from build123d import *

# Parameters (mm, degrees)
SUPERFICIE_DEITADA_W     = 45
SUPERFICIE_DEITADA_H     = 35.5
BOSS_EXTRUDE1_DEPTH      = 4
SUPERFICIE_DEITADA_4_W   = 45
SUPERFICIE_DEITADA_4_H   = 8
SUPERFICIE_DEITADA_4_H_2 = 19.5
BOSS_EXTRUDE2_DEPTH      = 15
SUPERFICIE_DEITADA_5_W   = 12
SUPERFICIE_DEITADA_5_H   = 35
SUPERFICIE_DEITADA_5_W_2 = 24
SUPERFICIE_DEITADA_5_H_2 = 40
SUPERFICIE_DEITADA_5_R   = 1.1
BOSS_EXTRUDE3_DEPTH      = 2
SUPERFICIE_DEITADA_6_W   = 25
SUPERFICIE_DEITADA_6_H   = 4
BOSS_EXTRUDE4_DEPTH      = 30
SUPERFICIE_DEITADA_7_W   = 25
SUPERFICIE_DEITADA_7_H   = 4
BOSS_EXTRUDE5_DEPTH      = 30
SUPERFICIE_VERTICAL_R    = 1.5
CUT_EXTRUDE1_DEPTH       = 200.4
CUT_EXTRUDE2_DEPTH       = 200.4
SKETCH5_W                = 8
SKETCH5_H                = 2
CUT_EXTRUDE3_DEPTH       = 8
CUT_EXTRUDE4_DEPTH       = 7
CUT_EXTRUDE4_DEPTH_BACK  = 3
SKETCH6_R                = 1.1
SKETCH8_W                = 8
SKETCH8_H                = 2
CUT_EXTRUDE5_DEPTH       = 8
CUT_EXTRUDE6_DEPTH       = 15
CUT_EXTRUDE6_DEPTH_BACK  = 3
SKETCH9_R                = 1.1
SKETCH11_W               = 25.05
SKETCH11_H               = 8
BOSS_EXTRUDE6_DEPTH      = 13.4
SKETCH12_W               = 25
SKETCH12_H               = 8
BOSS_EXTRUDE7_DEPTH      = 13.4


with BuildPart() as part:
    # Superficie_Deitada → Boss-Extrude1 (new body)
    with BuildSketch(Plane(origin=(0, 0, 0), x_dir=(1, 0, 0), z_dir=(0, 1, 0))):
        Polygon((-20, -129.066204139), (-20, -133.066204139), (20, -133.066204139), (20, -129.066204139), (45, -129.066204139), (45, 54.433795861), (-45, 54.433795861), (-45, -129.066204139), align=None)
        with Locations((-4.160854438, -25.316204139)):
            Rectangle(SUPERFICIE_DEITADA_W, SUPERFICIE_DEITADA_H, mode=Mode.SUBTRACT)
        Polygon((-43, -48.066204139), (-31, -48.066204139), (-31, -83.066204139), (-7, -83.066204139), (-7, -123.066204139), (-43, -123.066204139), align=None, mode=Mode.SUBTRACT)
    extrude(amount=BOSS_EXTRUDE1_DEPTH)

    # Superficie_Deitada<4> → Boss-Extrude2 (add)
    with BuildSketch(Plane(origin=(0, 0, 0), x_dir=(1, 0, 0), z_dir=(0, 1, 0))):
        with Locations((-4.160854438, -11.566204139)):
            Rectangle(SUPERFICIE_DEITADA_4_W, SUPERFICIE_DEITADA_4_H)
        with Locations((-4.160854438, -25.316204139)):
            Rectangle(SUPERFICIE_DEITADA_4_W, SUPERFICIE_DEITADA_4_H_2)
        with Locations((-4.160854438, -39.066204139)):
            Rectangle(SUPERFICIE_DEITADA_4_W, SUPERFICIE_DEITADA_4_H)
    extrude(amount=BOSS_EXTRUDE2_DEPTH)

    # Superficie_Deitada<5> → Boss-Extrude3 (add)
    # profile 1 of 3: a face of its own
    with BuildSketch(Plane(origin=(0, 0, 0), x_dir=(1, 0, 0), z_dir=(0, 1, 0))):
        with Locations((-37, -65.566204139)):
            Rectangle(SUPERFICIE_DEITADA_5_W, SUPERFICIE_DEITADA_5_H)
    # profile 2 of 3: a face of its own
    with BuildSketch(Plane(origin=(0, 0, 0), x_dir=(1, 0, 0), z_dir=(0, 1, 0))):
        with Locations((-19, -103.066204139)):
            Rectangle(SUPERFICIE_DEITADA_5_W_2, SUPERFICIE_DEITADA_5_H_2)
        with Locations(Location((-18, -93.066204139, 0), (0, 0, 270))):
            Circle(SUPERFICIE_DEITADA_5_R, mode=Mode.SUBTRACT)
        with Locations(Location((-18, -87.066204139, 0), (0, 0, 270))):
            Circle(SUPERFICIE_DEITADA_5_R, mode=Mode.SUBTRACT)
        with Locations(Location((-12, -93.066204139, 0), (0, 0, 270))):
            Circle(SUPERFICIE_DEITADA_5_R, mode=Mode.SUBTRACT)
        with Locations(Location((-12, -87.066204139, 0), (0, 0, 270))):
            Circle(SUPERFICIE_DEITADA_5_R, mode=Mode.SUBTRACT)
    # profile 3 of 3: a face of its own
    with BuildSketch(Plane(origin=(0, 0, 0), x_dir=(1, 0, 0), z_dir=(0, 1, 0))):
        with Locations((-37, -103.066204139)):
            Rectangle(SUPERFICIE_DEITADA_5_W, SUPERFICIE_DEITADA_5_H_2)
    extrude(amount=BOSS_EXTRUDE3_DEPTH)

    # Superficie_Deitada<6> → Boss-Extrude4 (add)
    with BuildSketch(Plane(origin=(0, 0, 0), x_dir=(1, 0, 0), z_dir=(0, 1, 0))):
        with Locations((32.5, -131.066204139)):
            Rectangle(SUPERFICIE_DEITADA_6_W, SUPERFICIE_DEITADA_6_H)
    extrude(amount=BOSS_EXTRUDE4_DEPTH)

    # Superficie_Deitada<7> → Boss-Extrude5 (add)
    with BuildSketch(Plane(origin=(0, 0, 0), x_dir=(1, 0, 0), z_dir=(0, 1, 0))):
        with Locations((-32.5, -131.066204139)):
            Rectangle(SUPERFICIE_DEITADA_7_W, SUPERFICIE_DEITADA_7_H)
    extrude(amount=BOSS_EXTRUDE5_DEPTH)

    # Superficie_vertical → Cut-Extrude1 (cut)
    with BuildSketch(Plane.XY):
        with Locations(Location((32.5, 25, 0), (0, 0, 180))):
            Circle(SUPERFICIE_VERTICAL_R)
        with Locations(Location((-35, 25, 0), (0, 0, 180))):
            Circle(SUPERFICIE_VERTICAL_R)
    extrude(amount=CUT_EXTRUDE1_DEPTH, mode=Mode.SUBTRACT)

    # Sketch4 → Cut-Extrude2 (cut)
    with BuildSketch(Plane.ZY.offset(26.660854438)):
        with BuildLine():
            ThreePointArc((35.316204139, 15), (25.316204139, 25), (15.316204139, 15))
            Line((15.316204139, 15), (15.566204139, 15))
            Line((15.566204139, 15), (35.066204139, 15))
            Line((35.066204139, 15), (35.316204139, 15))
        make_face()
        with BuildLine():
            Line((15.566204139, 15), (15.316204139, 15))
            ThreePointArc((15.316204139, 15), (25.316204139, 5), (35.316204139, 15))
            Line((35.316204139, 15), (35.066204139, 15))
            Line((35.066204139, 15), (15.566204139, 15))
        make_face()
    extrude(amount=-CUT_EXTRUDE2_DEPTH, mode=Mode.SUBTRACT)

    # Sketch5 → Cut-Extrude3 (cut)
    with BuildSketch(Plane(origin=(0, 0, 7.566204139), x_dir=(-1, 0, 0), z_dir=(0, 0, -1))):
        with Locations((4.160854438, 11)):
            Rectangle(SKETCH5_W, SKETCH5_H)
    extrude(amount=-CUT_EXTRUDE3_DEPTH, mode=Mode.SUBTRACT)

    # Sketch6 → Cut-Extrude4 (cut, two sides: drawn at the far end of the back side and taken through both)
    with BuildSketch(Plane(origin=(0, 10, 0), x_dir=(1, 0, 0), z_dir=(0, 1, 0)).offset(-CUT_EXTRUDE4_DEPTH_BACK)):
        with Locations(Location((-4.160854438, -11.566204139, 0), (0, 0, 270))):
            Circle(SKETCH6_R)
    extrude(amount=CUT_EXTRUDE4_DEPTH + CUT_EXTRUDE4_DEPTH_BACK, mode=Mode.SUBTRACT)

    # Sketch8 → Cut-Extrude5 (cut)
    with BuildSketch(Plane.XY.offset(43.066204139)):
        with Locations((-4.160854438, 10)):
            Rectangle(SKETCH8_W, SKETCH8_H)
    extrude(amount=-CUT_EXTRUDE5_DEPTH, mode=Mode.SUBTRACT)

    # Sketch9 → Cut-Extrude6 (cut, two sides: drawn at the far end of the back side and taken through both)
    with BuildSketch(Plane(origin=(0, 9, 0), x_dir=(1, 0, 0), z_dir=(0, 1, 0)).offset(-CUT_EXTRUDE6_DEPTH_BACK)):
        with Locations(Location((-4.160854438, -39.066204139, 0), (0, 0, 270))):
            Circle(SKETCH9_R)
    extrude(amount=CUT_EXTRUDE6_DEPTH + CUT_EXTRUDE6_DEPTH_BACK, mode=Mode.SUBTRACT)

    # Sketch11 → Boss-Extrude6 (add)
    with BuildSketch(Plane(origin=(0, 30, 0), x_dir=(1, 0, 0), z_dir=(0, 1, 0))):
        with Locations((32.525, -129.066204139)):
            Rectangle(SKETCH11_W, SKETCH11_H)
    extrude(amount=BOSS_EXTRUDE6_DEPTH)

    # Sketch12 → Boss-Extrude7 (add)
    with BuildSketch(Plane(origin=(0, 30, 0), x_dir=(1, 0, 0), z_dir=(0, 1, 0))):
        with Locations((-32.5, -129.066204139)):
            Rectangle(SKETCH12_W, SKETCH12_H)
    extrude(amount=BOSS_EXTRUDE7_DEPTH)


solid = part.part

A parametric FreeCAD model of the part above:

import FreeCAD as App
import Part
import Sketcher
Q = App.Units.Quantity


def add_polygon(sketch, points):
    """Adds a closed chain of lines whose ends are joined by coincident constraints."""
    first, n = sketch.GeometryCount, len(points)
    for a, b in zip(points, points[1:] + points[:1]):
        sketch.addGeometry(Part.LineSegment(App.Vector(*a, 0), App.Vector(*b, 0)), False)
    for i in range(n):
        sketch.addConstraint(Sketcher.Constraint("Coincident", first + i, 2, first + (i + 1) % n, 1))

doc = App.newDocument("Part")
body = doc.addObject("PartDesign::Body", "Body")

# Sketch on XZ plane
sketch1 = doc.addObject("Sketcher::SketchObject", "Sketch")
body.addObject(sketch1)
sketch1.AttachmentSupport = (doc.XZ_Plane, [""])
sketch1.MapMode = "FlatFace"
add_polygon(sketch1, [(-20, 129.1), (-20, 133.1), (20, 133.1), (20, 129.1), (45, 129.1), (45, -54.4), (-45, -54.4), (-45, 129.1)])  # lines 0-7
add_polygon(sketch1, [(-43, 123.1), (-43, 48.1), (-31, 48.1), (-31, 83.1), (-7, 83.1), (-7, 123.1)])  # lines 8-13
add_polygon(sketch1, [(18.3, 43.1), (-26.7, 43.1), (-26.7, 7.6), (18.3, 7.6)])  # lines 14-17
sketch1.addConstraint([
    Sketcher.Constraint("Vertical", 0),
    Sketcher.Constraint("Horizontal", 1),
    Sketcher.Constraint("Vertical", 2),
    Sketcher.Constraint("Horizontal", 3),
    Sketcher.Constraint("Vertical", 4),
    Sketcher.Constraint("Horizontal", 5),
    Sketcher.Constraint("Vertical", 6),
    Sketcher.Constraint("Horizontal", 7),
    Sketcher.Constraint("Vertical", 8),
    Sketcher.Constraint("Horizontal", 9),
    Sketcher.Constraint("Vertical", 10),
    Sketcher.Constraint("Horizontal", 11),
    Sketcher.Constraint("Vertical", 12),
    Sketcher.Constraint("Horizontal", 13),
    Sketcher.Constraint("Horizontal", 14),
    Sketcher.Constraint("Vertical", 15),
    Sketcher.Constraint("Horizontal", 16),
    Sketcher.Constraint("Vertical", 17),
    Sketcher.Constraint("Symmetric", 3, 2, 6, 2, -2),
    Sketcher.Constraint("Equal", 3, 7),
    Sketcher.Constraint("Equal", 1, 12),
    Sketcher.Constraint("DistanceX", 1, 1, 1, 2, Q("40 mm")),
    Sketcher.Constraint("DistanceX", 3, 1, 3, 2, Q("25 mm")),
    Sketcher.Constraint("DistanceX", 9, 1, 9, 2, Q("12 mm")),
    Sketcher.Constraint("DistanceX", 11, 1, 11, 2, Q("24 mm")),
    Sketcher.Constraint("DistanceX", 14, 2, 14, 1, Q("45 mm")),
    Sketcher.Constraint("DistanceY", 0, 1, 0, 2, Q("4 mm")),
    Sketcher.Constraint("DistanceY", 8, 2, 8, 1, Q("75 mm")),
    Sketcher.Constraint("DistanceY", 4, 2, 4, 1, Q("183.5 mm")),
    Sketcher.Constraint("DistanceY", 15, 2, 15, 1, Q("35.5 mm")),
    Sketcher.Constraint("DistanceX", 8, 2, -1, 1, Q("43 mm")),
    Sketcher.Constraint("DistanceY", 8, 2, 6, 2, Q("81 mm")),
    Sketcher.Constraint("DistanceY", 14, 2, 9, 2, Q("5 mm")),
    Sketcher.Constraint("DistanceY", -1, 1, 0, 2, Q("133.066204 mm")),
    Sketcher.Constraint("DistanceX", 14, 2, -1, 1, Q("26.660854 mm")),
])
pad1 = doc.addObject("PartDesign::Pad", "Pad")
body.addObject(pad1)
pad1.Profile = sketch1
pad1.Length = 4
pad1.Reversed = True

# Sketch on XZ plane
sketch2 = doc.addObject("Sketcher::SketchObject", "Sketch001")
body.addObject(sketch2)
sketch2.AttachmentSupport = (doc.XZ_Plane, [""])
sketch2.MapMode = "FlatFace"
add_polygon(sketch2, [(-27, 8), (-27, 43), (18, 43), (18, 8)])  # lines 0-3
sketch2.addConstraint([
    Sketcher.Constraint("Vertical", 0),
    Sketcher.Constraint("Horizontal", 1),
    Sketcher.Constraint("Vertical", 2),
    Sketcher.Constraint("Horizontal", 3),
    Sketcher.Constraint("DistanceX", 1, 1, 1, 2, Q("45 mm")),
    Sketcher.Constraint("DistanceY", 0, 1, 0, 2, Q("35.5 mm")),
    Sketcher.Constraint("DistanceX", 0, 2, -1, 1, Q("26.660854 mm")),
    Sketcher.Constraint("DistanceY", -1, 1, 0, 2, Q("43.066204 mm")),
])
pad2 = doc.addObject("PartDesign::Pad", "Pad001")
body.addObject(pad2)
pad2.Profile = sketch2
pad2.Length = 15
pad2.Reversed = True

# Sketch on XZ plane
sketch3 = doc.addObject("Sketcher::SketchObject", "Sketch002")
body.addObject(sketch3)
sketch3.AttachmentSupport = (doc.XZ_Plane, [""])
sketch3.MapMode = "FlatFace"
add_polygon(sketch3, [(-43, 48.1), (-43, 123.1), (-7, 123.1), (-7, 83.1), (-31, 83.1), (-31, 48.1)])  # lines 0-5
sketch3.addGeometry(Part.Circle(App.Vector(-12, 87.1, 0), App.Vector(0, 0, 1), 1.1), False)  # 6
sketch3.addGeometry(Part.Circle(App.Vector(-18, 93.1, 0), App.Vector(0, 0, 1), 1.1), False)  # 7
sketch3.addGeometry(Part.Circle(App.Vector(-12, 93.1, 0), App.Vector(0, 0, 1), 1.1), False)  # 8
sketch3.addGeometry(Part.Circle(App.Vector(-18, 87.1, 0), App.Vector(0, 0, 1), 1.1), False)  # 9
sketch3.addConstraint([
    Sketcher.Constraint("Vertical", 0),
    Sketcher.Constraint("Horizontal", 1),
    Sketcher.Constraint("Vertical", 2),
    Sketcher.Constraint("Horizontal", 3),
    Sketcher.Constraint("Vertical", 4),
    Sketcher.Constraint("Horizontal", 5),
    Sketcher.Constraint("Equal", 6, 7),
    Sketcher.Constraint("Equal", 7, 8),
    Sketcher.Constraint("Equal", 8, 9),
    Sketcher.Constraint("Horizontal", 7, 3, 8, 3),
    Sketcher.Constraint("Horizontal", 6, 3, 9, 3),
    Sketcher.Constraint("Vertical", 6, 3, 8, 3),
    Sketcher.Constraint("Vertical", 7, 3, 9, 3),
    Sketcher.Constraint("Diameter", 6, Q("2.2 mm")),
    Sketcher.Constraint("DistanceX", 1, 1, 1, 2, Q("36 mm")),
    Sketcher.Constraint("DistanceX", 3, 2, 3, 1, Q("24 mm")),
    Sketcher.Constraint("DistanceY", 0, 1, 0, 2, Q("75 mm")),
    Sketcher.Constraint("DistanceY", 2, 2, 2, 1, Q("40 mm")),
    Sketcher.Constraint("DistanceX", 6, 3, -1, 1, Q("12 mm")),
    Sketcher.Constraint("DistanceX", 7, 3, -1, 1, Q("18 mm")),
    Sketcher.Constraint("DistanceX", 0, 2, -1, 1, Q("43 mm")),
    Sketcher.Constraint("DistanceY", 6, 3, 7, 3, Q("6 mm")),
    Sketcher.Constraint("DistanceY", 7, 3, 0, 2, Q("30 mm")),
    Sketcher.Constraint("DistanceY", -1, 1, 6, 3, Q("87.066204 mm")),
])
pad3 = doc.addObject("PartDesign::Pad", "Pad002")
body.addObject(pad3)
pad3.Profile = sketch3
pad3.Length = 2
pad3.Reversed = True

# Sketch on XZ plane
sketch4 = doc.addObject("Sketcher::SketchObject", "Sketch003")
body.addObject(sketch4)
sketch4.AttachmentSupport = (doc.XZ_Plane, [""])
sketch4.MapMode = "FlatFace"
add_polygon(sketch4, [(20, 129.1), (20, 133.1), (45, 133.1), (45, 129.1)])  # lines 0-3
sketch4.addConstraint([
    Sketcher.Constraint("Vertical", 0),
    Sketcher.Constraint("Horizontal", 1),
    Sketcher.Constraint("Vertical", 2),
    Sketcher.Constraint("Horizontal", 3),
    Sketcher.Constraint("DistanceX", 1, 1, 1, 2, Q("25 mm")),
    Sketcher.Constraint("DistanceY", 0, 1, 0, 2, Q("4 mm")),
    Sketcher.Constraint("DistanceX", -1, 1, 0, 2, Q("20 mm")),
    Sketcher.Constraint("DistanceY", -1, 1, 0, 2, Q("133.066204 mm")),
])
pad4 = doc.addObject("PartDesign::Pad", "Pad003")
body.addObject(pad4)
pad4.Profile = sketch4
pad4.Length = 30
pad4.Reversed = True

# Sketch on XZ plane
sketch5 = doc.addObject("Sketcher::SketchObject", "Sketch004")
body.addObject(sketch5)
sketch5.AttachmentSupport = (doc.XZ_Plane, [""])
sketch5.MapMode = "FlatFace"
add_polygon(sketch5, [(-45, 129.1), (-45, 133.1), (-20, 133.1), (-20, 129.1)])  # lines 0-3
sketch5.addConstraint([
    Sketcher.Constraint("Vertical", 0),
    Sketcher.Constraint("Horizontal", 1),
    Sketcher.Constraint("Vertical", 2),
    Sketcher.Constraint("Horizontal", 3),
    Sketcher.Constraint("DistanceX", 1, 1, 1, 2, Q("25 mm")),
    Sketcher.Constraint("DistanceY", 0, 1, 0, 2, Q("4 mm")),
    Sketcher.Constraint("DistanceX", 0, 2, -1, 1, Q("45 mm")),
    Sketcher.Constraint("DistanceY", -1, 1, 0, 2, Q("133.066204 mm")),
])
pad5 = doc.addObject("PartDesign::Pad", "Pad004")
body.addObject(pad5)
pad5.Profile = sketch5
pad5.Length = 30
pad5.Reversed = True

# Sketch on XY plane
sketch6 = doc.addObject("Sketcher::SketchObject", "Sketch005")
body.addObject(sketch6)
sketch6.AttachmentSupport = (doc.XY_Plane, [""])
sketch6.MapMode = "FlatFace"
sketch6.addGeometry([
    Part.Circle(App.Vector(32.5, 25, 0), App.Vector(0, 0, 1), 1.5),
    Part.Circle(App.Vector(-35, 25, 0), App.Vector(0, 0, 1), 1.5),
], False)
sketch6.addConstraint([
    Sketcher.Constraint("Equal", 0, 1),
    Sketcher.Constraint("Horizontal", 0, 3, 1, 3),
    Sketcher.Constraint("Diameter", 0, Q("3 mm")),
    Sketcher.Constraint("DistanceY", -1, 1, 0, 3, Q("25 mm")),
    Sketcher.Constraint("DistanceX", 1, 3, -1, 1, Q("35 mm")),
    Sketcher.Constraint("DistanceX", -1, 1, 0, 3, Q("32.5 mm")),
])
pocket1 = doc.addObject("PartDesign::Pocket", "Pocket")
body.addObject(pocket1)
pocket1.Profile = sketch6
pocket1.Length = 200.4
pocket1.Reversed = True

# Sketch on YZ plane
sketch7 = doc.addObject("Sketcher::SketchObject", "Sketch006")
body.addObject(sketch7)
sketch7.AttachmentSupport = (doc.YZ_Plane, [""])
sketch7.MapMode = "FlatFace"
sketch7.AttachmentOffset = App.Placement(App.Vector(0, 0, -26.660854), App.Rotation())
sketch7.addGeometry(Part.Circle(App.Vector(15, 25, 0), App.Vector(0, 0, 1), 10), False)
sketch7.addConstraint([
    Sketcher.Constraint("Diameter", 0, Q("20 mm")),
    Sketcher.Constraint("DistanceX", -1, 1, 0, 3, Q("15 mm")),
    Sketcher.Constraint("DistanceY", -1, 1, 0, 3, Q("25.316204 mm")),
])
pocket2 = doc.addObject("PartDesign::Pocket", "Pocket001")
body.addObject(pocket2)
pocket2.Profile = sketch7
pocket2.Length = 200.4
pocket2.Reversed = True

# Sketch on XY plane
sketch8 = doc.addObject("Sketcher::SketchObject", "Sketch007")
body.addObject(sketch8)
sketch8.AttachmentSupport = (doc.XY_Plane, [""])
sketch8.MapMode = "FlatFace"
sketch8.AttachmentOffset = App.Placement(App.Vector(0, 0, 7.566204), App.Rotation())
add_polygon(sketch8, [(-0.2, 12), (-0.2, 10), (-8.2, 10), (-8.2, 12)])  # lines 0-3
sketch8.addConstraint([
    Sketcher.Constraint("Vertical", 0),
    Sketcher.Constraint("Horizontal", 1),
    Sketcher.Constraint("Vertical", 2),
    Sketcher.Constraint("Horizontal", 3),
    Sketcher.Constraint("DistanceX", 1, 2, 1, 1, Q("8 mm")),
    Sketcher.Constraint("DistanceY", 0, 2, 0, 1, Q("2 mm")),
    Sketcher.Constraint("DistanceY", -1, 1, 0, 2, Q("10 mm")),
    Sketcher.Constraint("DistanceX", 0, 2, -1, 1, Q("0.160854 mm")),
])
pocket3 = doc.addObject("PartDesign::Pocket", "Pocket002")
body.addObject(pocket3)
pocket3.Profile = sketch8
pocket3.Length = 8
pocket3.Reversed = True

# Sketch on XZ plane
sketch9 = doc.addObject("Sketcher::SketchObject", "Sketch008")
body.addObject(sketch9)
sketch9.AttachmentSupport = (doc.XZ_Plane, [""])
sketch9.MapMode = "FlatFace"
sketch9.AttachmentOffset = App.Placement(App.Vector(0, 0, -10), App.Rotation())
sketch9.addGeometry(Part.Circle(App.Vector(-4.2, 11.6, 0), App.Vector(0, 0, 1), 1.1), False)
sketch9.addConstraint([
    Sketcher.Constraint("Diameter", 0, Q("2.2 mm")),
    Sketcher.Constraint("DistanceX", 0, 3, -1, 1, Q("4.160854 mm")),
    Sketcher.Constraint("DistanceY", -1, 1, 0, 3, Q("11.566204 mm")),
])
pocket4 = doc.addObject("PartDesign::Pocket", "Pocket003")
body.addObject(pocket4)
pocket4.Profile = sketch9
pocket4.Type = "TwoLengths"
pocket4.Length = 7
pocket4.Length2 = 3

# Sketch on XY plane
sketch10 = doc.addObject("Sketcher::SketchObject", "Sketch009")
body.addObject(sketch10)
sketch10.AttachmentSupport = (doc.XY_Plane, [""])
sketch10.MapMode = "FlatFace"
sketch10.AttachmentOffset = App.Placement(App.Vector(0, 0, 43.066204), App.Rotation())
add_polygon(sketch10, [(-8.2, 11), (-8.2, 9), (-0.2, 9), (-0.2, 11)])  # lines 0-3
sketch10.addConstraint([
    Sketcher.Constraint("Vertical", 0),
    Sketcher.Constraint("Horizontal", 1),
    Sketcher.Constraint("Vertical", 2),
    Sketcher.Constraint("Horizontal", 3),
    Sketcher.Constraint("DistanceX", 1, 1, 1, 2, Q("8 mm")),
    Sketcher.Constraint("DistanceY", 0, 2, 0, 1, Q("2 mm")),
    Sketcher.Constraint("DistanceY", -1, 1, 0, 2, Q("9 mm")),
    Sketcher.Constraint("DistanceX", 0, 2, -1, 1, Q("8.160854 mm")),
])
pocket5 = doc.addObject("PartDesign::Pocket", "Pocket004")
body.addObject(pocket5)
pocket5.Profile = sketch10
pocket5.Length = 8

# Sketch on XZ plane
sketch11 = doc.addObject("Sketcher::SketchObject", "Sketch010")
body.addObject(sketch11)
sketch11.AttachmentSupport = (doc.XZ_Plane, [""])
sketch11.MapMode = "FlatFace"
sketch11.AttachmentOffset = App.Placement(App.Vector(0, 0, -9), App.Rotation())
sketch11.addGeometry(Part.Circle(App.Vector(-4.2, 39.1, 0), App.Vector(0, 0, 1), 1.1), False)
sketch11.addConstraint([
    Sketcher.Constraint("Diameter", 0, Q("2.2 mm")),
    Sketcher.Constraint("DistanceX", 0, 3, -1, 1, Q("4.160854 mm")),
    Sketcher.Constraint("DistanceY", -1, 1, 0, 3, Q("39.066204 mm")),
])
pocket6 = doc.addObject("PartDesign::Pocket", "Pocket005")
body.addObject(pocket6)
pocket6.Profile = sketch11
pocket6.Type = "TwoLengths"
pocket6.Length = 15
pocket6.Length2 = 3

# Sketch on XZ plane
sketch12 = doc.addObject("Sketcher::SketchObject", "Sketch011")
body.addObject(sketch12)
sketch12.AttachmentSupport = (doc.XZ_Plane, [""])
sketch12.MapMode = "FlatFace"
sketch12.AttachmentOffset = App.Placement(App.Vector(0, 0, -30), App.Rotation())
add_polygon(sketch12, [(20, 125), (20, 133), (45, 133), (45, 125)])  # lines 0-3
sketch12.addConstraint([
    Sketcher.Constraint("Vertical", 0),
    Sketcher.Constraint("Horizontal", 1),
    Sketcher.Constraint("Vertical", 2),
    Sketcher.Constraint("Horizontal", 3),
    Sketcher.Constraint("DistanceY", 0, 1, 0, 2, Q("8 mm")),
    Sketcher.Constraint("DistanceX", -1, 1, 0, 2, Q("20 mm")),
    Sketcher.Constraint("DistanceX", 1, 1, 1, 2, Q("25.05 mm")),
    Sketcher.Constraint("DistanceY", -1, 1, 0, 2, Q("133.066204 mm")),
])
pad6 = doc.addObject("PartDesign::Pad", "Pad005")
body.addObject(pad6)
pad6.Profile = sketch12
pad6.Length = 13.4
pad6.Reversed = True

# Sketch on XZ plane
sketch13 = doc.addObject("Sketcher::SketchObject", "Sketch012")
body.addObject(sketch13)
sketch13.AttachmentSupport = (doc.XZ_Plane, [""])
sketch13.MapMode = "FlatFace"
sketch13.AttachmentOffset = App.Placement(App.Vector(0, 0, -30), App.Rotation())
add_polygon(sketch13, [(-45, 125), (-45, 133), (-20, 133), (-20, 125)])  # lines 0-3
sketch13.addConstraint([
    Sketcher.Constraint("Vertical", 0),
    Sketcher.Constraint("Horizontal", 1),
    Sketcher.Constraint("Vertical", 2),
    Sketcher.Constraint("Horizontal", 3),
    Sketcher.Constraint("DistanceX", 1, 1, 1, 2, Q("25 mm")),
    Sketcher.Constraint("DistanceY", 0, 1, 0, 2, Q("8 mm")),
    Sketcher.Constraint("DistanceX", 0, 2, -1, 1, Q("45 mm")),
    Sketcher.Constraint("DistanceY", -1, 1, 0, 2, Q("133.066204 mm")),
])
pad7 = doc.addObject("PartDesign::Pad", "Pad006")
body.addObject(pad7)
pad7.Profile = sketch13
pad7.Length = 13.4
pad7.Reversed = True

doc.recompute()
